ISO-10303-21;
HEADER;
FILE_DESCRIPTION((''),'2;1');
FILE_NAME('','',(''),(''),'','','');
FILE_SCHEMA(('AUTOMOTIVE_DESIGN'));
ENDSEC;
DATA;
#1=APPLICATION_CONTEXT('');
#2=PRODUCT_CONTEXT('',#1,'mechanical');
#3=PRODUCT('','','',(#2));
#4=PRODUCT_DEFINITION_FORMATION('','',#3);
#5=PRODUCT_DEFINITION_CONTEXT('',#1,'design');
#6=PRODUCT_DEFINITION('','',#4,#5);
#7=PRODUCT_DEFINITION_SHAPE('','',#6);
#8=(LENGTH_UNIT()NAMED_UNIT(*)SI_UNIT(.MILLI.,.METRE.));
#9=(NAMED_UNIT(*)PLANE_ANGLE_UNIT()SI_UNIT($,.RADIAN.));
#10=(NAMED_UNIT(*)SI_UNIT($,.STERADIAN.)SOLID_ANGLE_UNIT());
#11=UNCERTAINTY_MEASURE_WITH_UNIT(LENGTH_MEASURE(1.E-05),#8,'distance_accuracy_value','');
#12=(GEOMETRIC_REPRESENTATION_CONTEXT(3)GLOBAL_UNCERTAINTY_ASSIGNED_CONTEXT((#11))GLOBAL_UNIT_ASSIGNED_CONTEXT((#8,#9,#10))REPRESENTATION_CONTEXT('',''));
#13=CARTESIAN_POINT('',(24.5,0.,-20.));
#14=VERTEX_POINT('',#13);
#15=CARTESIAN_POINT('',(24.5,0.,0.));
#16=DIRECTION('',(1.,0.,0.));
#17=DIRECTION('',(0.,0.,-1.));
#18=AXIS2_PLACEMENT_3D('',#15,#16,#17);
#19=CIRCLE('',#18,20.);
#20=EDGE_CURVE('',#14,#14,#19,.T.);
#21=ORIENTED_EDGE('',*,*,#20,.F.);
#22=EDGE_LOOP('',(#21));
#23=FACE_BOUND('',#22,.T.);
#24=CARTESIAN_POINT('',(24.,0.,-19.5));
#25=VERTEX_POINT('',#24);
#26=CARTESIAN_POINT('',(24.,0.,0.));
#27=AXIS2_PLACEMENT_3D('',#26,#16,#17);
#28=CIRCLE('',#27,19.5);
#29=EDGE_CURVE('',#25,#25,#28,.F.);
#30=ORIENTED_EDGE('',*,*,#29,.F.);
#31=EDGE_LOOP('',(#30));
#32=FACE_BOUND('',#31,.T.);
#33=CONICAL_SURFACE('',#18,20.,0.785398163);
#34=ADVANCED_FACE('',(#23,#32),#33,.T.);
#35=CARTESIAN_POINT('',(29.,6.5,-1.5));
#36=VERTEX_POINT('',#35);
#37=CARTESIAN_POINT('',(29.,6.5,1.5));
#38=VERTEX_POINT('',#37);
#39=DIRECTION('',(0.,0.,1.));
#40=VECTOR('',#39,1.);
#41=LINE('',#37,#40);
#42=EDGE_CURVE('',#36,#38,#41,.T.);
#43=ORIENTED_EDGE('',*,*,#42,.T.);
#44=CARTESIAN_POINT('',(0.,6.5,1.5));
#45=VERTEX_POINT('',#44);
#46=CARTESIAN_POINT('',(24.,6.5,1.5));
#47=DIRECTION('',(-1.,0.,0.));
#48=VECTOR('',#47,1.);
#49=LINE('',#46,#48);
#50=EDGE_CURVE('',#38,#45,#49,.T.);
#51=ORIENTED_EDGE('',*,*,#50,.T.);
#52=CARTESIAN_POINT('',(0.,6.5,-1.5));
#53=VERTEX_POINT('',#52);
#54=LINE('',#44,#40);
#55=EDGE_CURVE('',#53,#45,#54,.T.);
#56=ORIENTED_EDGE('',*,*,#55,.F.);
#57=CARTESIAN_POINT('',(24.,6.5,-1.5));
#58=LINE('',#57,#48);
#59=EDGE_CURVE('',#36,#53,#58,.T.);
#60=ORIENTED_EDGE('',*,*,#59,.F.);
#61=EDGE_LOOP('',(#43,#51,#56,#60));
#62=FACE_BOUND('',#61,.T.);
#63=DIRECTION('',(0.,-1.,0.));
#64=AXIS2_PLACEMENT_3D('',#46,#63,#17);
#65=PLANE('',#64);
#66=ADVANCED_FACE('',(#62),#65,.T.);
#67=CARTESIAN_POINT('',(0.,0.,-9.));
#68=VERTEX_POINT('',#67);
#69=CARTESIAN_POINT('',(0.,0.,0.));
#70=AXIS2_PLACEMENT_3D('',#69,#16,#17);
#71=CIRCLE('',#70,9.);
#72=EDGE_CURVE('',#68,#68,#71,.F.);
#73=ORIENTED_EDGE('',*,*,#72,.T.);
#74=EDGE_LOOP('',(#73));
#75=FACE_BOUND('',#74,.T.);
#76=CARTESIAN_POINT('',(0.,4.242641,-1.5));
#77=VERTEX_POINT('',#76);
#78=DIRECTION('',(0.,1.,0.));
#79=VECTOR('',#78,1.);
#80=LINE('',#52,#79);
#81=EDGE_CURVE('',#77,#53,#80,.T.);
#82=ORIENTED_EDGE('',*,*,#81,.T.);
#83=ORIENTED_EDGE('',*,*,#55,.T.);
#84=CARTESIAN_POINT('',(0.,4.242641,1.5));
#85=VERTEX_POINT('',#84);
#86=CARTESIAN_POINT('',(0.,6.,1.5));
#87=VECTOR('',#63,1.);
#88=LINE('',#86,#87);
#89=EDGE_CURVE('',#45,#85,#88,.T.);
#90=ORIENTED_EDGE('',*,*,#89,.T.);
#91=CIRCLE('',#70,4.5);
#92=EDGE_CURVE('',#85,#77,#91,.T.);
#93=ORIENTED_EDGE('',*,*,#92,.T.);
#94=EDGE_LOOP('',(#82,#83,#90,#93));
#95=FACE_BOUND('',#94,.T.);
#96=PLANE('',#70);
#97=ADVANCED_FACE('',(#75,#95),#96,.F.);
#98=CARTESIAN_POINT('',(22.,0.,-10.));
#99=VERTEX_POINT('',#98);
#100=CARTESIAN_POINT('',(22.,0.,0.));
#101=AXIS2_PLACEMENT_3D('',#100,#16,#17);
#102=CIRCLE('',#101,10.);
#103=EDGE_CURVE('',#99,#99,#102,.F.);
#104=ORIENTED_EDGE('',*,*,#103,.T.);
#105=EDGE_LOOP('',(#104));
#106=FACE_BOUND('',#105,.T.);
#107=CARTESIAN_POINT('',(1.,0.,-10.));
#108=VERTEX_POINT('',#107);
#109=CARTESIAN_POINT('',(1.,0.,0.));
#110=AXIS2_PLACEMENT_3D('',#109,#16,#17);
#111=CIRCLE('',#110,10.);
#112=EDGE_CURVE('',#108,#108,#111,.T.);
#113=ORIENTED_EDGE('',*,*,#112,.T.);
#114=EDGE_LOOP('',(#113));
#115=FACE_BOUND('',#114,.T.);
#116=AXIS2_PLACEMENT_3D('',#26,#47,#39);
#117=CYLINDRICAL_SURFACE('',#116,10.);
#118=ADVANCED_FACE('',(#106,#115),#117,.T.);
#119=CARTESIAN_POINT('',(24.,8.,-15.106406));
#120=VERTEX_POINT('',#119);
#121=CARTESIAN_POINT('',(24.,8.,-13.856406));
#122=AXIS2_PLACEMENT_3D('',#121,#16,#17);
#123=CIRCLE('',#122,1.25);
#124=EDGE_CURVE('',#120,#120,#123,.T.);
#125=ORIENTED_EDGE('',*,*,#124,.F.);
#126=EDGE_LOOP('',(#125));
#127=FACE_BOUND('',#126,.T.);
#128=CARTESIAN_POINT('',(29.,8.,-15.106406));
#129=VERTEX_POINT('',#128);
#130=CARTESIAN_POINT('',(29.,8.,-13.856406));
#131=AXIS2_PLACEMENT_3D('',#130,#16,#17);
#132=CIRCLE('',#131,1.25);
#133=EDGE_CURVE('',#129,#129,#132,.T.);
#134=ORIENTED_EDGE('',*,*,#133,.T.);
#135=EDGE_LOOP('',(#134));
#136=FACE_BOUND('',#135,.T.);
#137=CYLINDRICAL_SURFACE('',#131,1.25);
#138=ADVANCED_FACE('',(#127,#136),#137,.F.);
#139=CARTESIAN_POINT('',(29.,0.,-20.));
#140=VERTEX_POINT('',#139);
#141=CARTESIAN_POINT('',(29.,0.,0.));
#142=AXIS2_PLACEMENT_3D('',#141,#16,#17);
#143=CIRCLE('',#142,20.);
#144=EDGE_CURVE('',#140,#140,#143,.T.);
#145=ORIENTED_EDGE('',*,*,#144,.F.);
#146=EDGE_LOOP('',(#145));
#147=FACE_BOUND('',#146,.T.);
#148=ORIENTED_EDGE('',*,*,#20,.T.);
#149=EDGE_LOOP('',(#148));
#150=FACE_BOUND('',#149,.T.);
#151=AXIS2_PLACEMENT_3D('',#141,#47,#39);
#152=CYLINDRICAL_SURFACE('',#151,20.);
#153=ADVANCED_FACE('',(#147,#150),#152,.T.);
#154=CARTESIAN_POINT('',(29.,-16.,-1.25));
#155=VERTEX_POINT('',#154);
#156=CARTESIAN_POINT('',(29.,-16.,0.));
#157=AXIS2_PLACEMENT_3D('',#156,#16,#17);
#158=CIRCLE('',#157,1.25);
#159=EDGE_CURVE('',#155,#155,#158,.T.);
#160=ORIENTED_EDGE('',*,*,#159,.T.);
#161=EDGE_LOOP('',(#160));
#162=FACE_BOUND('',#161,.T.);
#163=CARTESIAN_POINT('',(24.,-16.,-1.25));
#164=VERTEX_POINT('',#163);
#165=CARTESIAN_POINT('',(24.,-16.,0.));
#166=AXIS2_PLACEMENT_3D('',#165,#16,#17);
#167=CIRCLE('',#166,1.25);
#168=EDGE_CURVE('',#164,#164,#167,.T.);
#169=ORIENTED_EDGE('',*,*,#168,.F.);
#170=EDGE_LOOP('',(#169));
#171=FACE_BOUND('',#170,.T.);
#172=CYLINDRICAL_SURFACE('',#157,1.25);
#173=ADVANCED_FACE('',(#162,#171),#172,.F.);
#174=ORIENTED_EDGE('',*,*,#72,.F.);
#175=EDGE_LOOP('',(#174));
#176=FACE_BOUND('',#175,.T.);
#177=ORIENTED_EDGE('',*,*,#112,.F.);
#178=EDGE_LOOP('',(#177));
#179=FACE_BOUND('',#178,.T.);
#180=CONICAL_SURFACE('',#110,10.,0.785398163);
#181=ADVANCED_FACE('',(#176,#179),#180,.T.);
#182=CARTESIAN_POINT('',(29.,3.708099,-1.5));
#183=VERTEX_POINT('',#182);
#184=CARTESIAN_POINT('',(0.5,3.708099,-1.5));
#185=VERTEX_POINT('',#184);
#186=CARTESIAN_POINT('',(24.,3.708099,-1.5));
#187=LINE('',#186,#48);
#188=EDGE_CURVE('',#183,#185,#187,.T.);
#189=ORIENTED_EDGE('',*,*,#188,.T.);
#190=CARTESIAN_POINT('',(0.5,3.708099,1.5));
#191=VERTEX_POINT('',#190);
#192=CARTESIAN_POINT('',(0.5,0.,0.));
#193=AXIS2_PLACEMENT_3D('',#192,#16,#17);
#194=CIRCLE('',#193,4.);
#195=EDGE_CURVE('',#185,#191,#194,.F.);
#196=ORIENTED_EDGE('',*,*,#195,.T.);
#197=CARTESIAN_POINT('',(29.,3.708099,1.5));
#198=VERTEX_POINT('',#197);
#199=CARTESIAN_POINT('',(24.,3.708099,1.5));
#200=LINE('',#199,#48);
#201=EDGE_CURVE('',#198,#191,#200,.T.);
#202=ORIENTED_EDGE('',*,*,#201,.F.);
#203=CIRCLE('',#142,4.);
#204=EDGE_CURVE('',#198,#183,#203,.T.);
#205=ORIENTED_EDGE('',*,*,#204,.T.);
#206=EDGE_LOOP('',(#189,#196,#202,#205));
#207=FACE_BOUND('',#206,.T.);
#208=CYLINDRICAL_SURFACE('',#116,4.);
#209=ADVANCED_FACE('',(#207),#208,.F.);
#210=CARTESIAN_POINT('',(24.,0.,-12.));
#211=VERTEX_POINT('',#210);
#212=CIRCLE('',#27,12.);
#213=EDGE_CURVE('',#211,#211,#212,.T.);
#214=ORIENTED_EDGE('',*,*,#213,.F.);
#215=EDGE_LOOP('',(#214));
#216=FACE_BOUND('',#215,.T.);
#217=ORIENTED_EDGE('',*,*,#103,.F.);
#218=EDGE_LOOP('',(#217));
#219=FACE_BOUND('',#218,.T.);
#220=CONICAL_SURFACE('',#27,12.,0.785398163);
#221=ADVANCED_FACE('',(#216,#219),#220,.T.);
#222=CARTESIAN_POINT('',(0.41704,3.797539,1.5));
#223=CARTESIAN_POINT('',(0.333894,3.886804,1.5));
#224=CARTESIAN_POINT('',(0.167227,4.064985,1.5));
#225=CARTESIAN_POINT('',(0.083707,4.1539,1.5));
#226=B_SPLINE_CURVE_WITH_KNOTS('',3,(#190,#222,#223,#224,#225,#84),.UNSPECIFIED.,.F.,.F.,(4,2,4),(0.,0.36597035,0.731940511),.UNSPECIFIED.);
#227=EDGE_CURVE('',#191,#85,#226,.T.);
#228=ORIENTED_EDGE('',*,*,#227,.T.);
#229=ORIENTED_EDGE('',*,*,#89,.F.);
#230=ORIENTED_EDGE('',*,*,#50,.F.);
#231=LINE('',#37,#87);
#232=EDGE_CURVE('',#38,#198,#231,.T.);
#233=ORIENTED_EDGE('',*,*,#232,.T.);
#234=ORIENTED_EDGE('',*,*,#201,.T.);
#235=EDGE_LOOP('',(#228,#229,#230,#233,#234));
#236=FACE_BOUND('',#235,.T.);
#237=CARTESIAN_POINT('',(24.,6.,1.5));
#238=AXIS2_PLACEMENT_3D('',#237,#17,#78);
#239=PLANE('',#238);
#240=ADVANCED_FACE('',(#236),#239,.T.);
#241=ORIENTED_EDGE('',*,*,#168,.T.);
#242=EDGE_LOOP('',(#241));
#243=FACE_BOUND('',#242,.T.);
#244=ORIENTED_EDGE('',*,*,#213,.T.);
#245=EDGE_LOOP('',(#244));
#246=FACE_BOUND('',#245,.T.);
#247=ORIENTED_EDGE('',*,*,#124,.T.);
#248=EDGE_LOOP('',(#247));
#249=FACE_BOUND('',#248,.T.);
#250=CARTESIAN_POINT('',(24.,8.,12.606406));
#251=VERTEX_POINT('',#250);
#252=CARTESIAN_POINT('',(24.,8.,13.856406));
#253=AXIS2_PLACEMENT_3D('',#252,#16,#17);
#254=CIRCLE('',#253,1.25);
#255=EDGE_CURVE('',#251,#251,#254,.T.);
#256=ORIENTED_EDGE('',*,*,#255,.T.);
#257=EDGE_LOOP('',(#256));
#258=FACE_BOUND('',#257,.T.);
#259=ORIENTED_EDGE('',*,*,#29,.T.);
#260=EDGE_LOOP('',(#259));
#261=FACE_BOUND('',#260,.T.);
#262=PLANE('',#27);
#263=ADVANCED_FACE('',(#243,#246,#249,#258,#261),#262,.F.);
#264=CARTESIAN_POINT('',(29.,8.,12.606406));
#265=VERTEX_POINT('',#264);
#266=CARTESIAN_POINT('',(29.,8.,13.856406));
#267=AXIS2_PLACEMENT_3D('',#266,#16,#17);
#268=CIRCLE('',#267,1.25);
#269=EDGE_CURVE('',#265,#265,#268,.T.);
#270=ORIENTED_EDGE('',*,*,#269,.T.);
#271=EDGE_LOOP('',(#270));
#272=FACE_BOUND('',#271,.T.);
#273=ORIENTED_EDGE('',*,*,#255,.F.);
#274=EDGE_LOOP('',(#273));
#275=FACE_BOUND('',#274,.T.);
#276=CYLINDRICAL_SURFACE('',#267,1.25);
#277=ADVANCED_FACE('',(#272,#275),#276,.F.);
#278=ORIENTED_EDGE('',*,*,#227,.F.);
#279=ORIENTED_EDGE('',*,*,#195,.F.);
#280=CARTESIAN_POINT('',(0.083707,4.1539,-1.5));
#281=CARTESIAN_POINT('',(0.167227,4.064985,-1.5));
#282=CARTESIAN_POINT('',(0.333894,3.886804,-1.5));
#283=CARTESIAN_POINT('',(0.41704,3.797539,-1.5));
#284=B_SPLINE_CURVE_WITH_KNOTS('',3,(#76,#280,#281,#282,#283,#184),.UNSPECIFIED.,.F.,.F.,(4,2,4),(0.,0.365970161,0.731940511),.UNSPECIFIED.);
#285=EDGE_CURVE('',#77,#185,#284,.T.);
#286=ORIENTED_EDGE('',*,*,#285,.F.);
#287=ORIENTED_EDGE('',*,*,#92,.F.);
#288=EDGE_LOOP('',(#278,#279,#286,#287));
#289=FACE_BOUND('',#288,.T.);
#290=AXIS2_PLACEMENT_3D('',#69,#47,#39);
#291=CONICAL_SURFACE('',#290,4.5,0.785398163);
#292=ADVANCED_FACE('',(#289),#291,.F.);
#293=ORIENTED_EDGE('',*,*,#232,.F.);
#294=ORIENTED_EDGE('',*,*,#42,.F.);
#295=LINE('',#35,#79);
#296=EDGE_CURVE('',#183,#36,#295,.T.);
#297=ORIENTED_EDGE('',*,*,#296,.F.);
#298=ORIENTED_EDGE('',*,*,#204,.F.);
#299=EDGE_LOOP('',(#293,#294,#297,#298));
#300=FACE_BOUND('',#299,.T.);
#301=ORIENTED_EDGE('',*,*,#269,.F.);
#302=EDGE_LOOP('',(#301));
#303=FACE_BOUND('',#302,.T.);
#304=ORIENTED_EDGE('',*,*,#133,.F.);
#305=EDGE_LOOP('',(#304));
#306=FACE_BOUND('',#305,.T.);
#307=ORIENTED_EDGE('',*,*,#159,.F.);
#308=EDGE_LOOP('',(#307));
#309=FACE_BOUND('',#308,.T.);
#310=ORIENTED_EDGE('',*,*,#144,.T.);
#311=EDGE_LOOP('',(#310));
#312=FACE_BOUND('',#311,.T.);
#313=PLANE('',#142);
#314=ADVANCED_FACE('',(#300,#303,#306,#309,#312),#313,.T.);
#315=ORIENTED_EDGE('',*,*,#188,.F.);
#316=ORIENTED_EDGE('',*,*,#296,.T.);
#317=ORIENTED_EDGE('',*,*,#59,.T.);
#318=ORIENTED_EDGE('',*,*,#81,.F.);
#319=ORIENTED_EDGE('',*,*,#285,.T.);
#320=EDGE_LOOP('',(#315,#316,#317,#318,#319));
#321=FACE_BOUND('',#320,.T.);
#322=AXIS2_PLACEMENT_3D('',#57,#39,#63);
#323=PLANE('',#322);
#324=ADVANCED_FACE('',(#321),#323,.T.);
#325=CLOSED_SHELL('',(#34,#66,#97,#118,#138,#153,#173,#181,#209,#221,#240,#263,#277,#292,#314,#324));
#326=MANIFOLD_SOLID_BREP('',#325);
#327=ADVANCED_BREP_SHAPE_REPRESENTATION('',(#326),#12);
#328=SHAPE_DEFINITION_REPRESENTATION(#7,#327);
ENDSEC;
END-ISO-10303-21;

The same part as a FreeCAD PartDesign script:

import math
import FreeCAD as App
import Part
import Sketcher

V = App.Vector
Q = App.Units.Quantity


def edges_at(feature, points):
    """Names of the edges that pass closest to the given points."""
    edges = feature.Shape.Edges
    near = lambda p: min(range(len(edges)), key=lambda i: edges[i].distToShape(Part.Vertex(*p))[0])
    return sorted({f"Edge{near(p) + 1}" for p in points})

doc = App.newDocument("Part")
body = doc.addObject("PartDesign::Body", "Body")

# Sketch on YZ plane
sketch1 = body.newObject("Sketcher::SketchObject", "Sketch")
sketch1.AttachmentSupport = (doc.getObject("YZ_Plane"), [""])
sketch1.MapMode = "FlatFace"
sketch1.addGeometry(Part.Circle(V(0, 0, 0), V(0, 0, 1), 10), False)
sketch1.addGeometry(Part.LineSegment(V(3.708099, 1.5, 0), V(6.5, 1.5, 0)), False)
sketch1.addGeometry(Part.LineSegment(V(6.5, 1.5, 0), V(6.5, -1.5, 0)), False)
sketch1.addGeometry(Part.LineSegment(V(6.5, -1.5, 0), V(3.708099, -1.5, 0)), False)
sketch1.addGeometry(Part.ArcOfCircle(Part.Circle(V(0, 0, 0), V(0, 0, 1), 4), math.radians(22.024313), math.radians(337.975687)), False)
sketch1.addConstraint(Sketcher.Constraint("Coincident", 1, 2, 2, 1))
sketch1.addConstraint(Sketcher.Constraint("Coincident", 2, 2, 3, 1))
sketch1.addConstraint(Sketcher.Constraint("Coincident", 3, 2, 4, 2))
sketch1.addConstraint(Sketcher.Constraint("Coincident", 4, 1, 1, 1))
sketch1.addConstraint(Sketcher.Constraint("Horizontal", 1))
sketch1.addConstraint(Sketcher.Constraint("Vertical", 2))
sketch1.addConstraint(Sketcher.Constraint("Horizontal", 3))
sketch1.addConstraint(Sketcher.Constraint("Coincident", 0, 3, -1, 1))
sketch1.addConstraint(Sketcher.Constraint("Coincident", 4, 3, -1, 1))
sketch1.addConstraint(Sketcher.Constraint("Vertical", 3, 2, 4, 1))
sketch1.addConstraint(Sketcher.Constraint("Diameter", 0, Q("20 mm")))
sketch1.addConstraint(Sketcher.Constraint("Radius", 4, Q("4 mm")))
sketch1.addConstraint(Sketcher.Constraint("DistanceY", 2, 2, 2, 1, Q("3 mm")))
sketch1.addConstraint(Sketcher.Constraint("DistanceX", -1, 1, 1, 2, Q("6.5 mm")))
pad1 = body.newObject("PartDesign::Pad", "Pad")
pad1.Profile = sketch1
pad1.Length = 24

# Sketch on YZ plane
sketch2 = body.newObject("Sketcher::SketchObject", "Sketch001")
sketch2.AttachmentSupport = (doc.getObject("YZ_Plane"), [""])
sketch2.MapMode = "FlatFace"
sketch2.AttachmentOffset = App.Placement(V(0, 0, 24), App.Rotation())
sketch2.addGeometry(Part.Circle(V(0, 0, 0), V(0, 0, 1), 20), False)
sketch2.addConstraint(Sketcher.Constraint("Coincident", 0, 3, -1, 1))
sketch2.addConstraint(Sketcher.Constraint("Diameter", 0, Q("40 mm")))
pad2 = body.newObject("PartDesign::Pad", "Pad001")
pad2.Profile = sketch2
pad2.Length = 5

# Sketch on YZ plane
sketch3 = body.newObject("Sketcher::SketchObject", "Sketch002")
sketch3.AttachmentSupport = (doc.getObject("YZ_Plane"), [""])
sketch3.MapMode = "FlatFace"
sketch3.AttachmentOffset = App.Placement(V(0, 0, 29), App.Rotation())
sketch3.addGeometry(Part.Circle(V(8, 13.856406, 0), V(0, 0, 1), 1.25), False)
sketch3.addGeometry(Part.Circle(V(8, -13.856406, 0), V(0, 0, 1), 1.25), False)
sketch3.addGeometry(Part.Circle(V(-16, 0, 0), V(0, 0, 1), 1.25), False)
sketch3.addConstraint(Sketcher.Constraint("Equal", 0, 1))
sketch3.addConstraint(Sketcher.Constraint("Equal", 1, 2))
sketch3.addConstraint(Sketcher.Constraint("Symmetric", 0, 3, 1, 3, -1))
sketch3.addConstraint(Sketcher.Constraint("PointOnObject", 2, 3, -1))
sketch3.addConstraint(Sketcher.Constraint("Diameter", 0, Q("2.5 mm")))
sketch3.addConstraint(Sketcher.Constraint("DistanceX", -1, 1, 0, 3, Q("8 mm")))
sketch3.addConstraint(Sketcher.Constraint("DistanceX", 2, 3, -1, 1, Q("16 mm")))
sketch3.addConstraint(Sketcher.Constraint("DistanceY", -1, 1, 0, 3, Q("13.856406 mm")))
doc.recompute()
hole = body.newObject("PartDesign::Hole", "Hole")
hole.Profile = sketch3
hole.ThreadType = "None"
hole.Diameter = 2.5
hole.DepthType = "Dimension"
hole.Depth = 7.5
hole.DrillPoint = "Angled"
hole.DrillPointAngle = 118

# Sketch on YZ plane
sketch4 = body.newObject("Sketcher::SketchObject", "Sketch003")
sketch4.AttachmentSupport = (doc.getObject("YZ_Plane"), [""])
sketch4.MapMode = "FlatFace"
sketch4.AttachmentOffset = App.Placement(V(0, 0, 29), App.Rotation())
sketch4.addGeometry(Part.LineSegment(V(6.5, 1.5, 0), V(3.708099, 1.5, 0)), False)
sketch4.addGeometry(Part.ArcOfCircle(Part.Circle(V(0, 0, 0), V(0, 0, 1), 4), math.radians(22.024313), math.radians(337.975687)), False)
sketch4.addGeometry(Part.LineSegment(V(3.708099, -1.5, 0), V(6.5, -1.5, 0)), False)
sketch4.addGeometry(Part.LineSegment(V(6.5, -1.5, 0), V(6.5, 1.5, 0)), False)
sketch4.addConstraint(Sketcher.Constraint("Coincident", 0, 2, 1, 1))
sketch4.addConstraint(Sketcher.Constraint("Coincident", 1, 2, 2, 1))
sketch4.addConstraint(Sketcher.Constraint("Coincident", 2, 2, 3, 1))
sketch4.addConstraint(Sketcher.Constraint("Coincident", 3, 2, 0, 1))
sketch4.addConstraint(Sketcher.Constraint("Horizontal", 0))
sketch4.addConstraint(Sketcher.Constraint("Horizontal", 2))
sketch4.addConstraint(Sketcher.Constraint("Vertical", 3))
sketch4.addConstraint(Sketcher.Constraint("Coincident", 1, 3, -1, 1))
sketch4.addConstraint(Sketcher.Constraint("Vertical", 0, 2, 1, 2))
sketch4.addConstraint(Sketcher.Constraint("Radius", 1, Q("4 mm")))
sketch4.addConstraint(Sketcher.Constraint("DistanceY", 3, 1, 3, 2, Q("3 mm")))
sketch4.addConstraint(Sketcher.Constraint("DistanceX", -1, 1, 2, 2, Q("6.5 mm")))
pocket1 = body.newObject("PartDesign::Pocket", "Pocket")
pocket1.Profile = sketch4
pocket1.Type = "UpToFirst"
doc.recompute()

chamfer = body.newObject("PartDesign::Chamfer", "Chamfer")
chamfer.Base = (pocket1, edges_at(pocket1, [(0, -4, 0)]))
chamfer.Size = 0.5
doc.recompute()

chamfer2 = body.newObject("PartDesign::Chamfer", "Chamfer001")
chamfer2.Base = (chamfer, edges_at(chamfer, [(0, 0, 10)]))
chamfer2.Size = 1
doc.recompute()

chamfer3 = body.newObject("PartDesign::Chamfer", "Chamfer002")
chamfer3.Base = (chamfer2, edges_at(chamfer2, [(24, 0, 20)]))
chamfer3.Size = 0.5
doc.recompute()

chamfer4 = body.newObject("PartDesign::Chamfer", "Chamfer003")
chamfer4.Base = (chamfer3, edges_at(chamfer3, [(24, 0, 10)]))
chamfer4.Size = 2

doc.recompute()
